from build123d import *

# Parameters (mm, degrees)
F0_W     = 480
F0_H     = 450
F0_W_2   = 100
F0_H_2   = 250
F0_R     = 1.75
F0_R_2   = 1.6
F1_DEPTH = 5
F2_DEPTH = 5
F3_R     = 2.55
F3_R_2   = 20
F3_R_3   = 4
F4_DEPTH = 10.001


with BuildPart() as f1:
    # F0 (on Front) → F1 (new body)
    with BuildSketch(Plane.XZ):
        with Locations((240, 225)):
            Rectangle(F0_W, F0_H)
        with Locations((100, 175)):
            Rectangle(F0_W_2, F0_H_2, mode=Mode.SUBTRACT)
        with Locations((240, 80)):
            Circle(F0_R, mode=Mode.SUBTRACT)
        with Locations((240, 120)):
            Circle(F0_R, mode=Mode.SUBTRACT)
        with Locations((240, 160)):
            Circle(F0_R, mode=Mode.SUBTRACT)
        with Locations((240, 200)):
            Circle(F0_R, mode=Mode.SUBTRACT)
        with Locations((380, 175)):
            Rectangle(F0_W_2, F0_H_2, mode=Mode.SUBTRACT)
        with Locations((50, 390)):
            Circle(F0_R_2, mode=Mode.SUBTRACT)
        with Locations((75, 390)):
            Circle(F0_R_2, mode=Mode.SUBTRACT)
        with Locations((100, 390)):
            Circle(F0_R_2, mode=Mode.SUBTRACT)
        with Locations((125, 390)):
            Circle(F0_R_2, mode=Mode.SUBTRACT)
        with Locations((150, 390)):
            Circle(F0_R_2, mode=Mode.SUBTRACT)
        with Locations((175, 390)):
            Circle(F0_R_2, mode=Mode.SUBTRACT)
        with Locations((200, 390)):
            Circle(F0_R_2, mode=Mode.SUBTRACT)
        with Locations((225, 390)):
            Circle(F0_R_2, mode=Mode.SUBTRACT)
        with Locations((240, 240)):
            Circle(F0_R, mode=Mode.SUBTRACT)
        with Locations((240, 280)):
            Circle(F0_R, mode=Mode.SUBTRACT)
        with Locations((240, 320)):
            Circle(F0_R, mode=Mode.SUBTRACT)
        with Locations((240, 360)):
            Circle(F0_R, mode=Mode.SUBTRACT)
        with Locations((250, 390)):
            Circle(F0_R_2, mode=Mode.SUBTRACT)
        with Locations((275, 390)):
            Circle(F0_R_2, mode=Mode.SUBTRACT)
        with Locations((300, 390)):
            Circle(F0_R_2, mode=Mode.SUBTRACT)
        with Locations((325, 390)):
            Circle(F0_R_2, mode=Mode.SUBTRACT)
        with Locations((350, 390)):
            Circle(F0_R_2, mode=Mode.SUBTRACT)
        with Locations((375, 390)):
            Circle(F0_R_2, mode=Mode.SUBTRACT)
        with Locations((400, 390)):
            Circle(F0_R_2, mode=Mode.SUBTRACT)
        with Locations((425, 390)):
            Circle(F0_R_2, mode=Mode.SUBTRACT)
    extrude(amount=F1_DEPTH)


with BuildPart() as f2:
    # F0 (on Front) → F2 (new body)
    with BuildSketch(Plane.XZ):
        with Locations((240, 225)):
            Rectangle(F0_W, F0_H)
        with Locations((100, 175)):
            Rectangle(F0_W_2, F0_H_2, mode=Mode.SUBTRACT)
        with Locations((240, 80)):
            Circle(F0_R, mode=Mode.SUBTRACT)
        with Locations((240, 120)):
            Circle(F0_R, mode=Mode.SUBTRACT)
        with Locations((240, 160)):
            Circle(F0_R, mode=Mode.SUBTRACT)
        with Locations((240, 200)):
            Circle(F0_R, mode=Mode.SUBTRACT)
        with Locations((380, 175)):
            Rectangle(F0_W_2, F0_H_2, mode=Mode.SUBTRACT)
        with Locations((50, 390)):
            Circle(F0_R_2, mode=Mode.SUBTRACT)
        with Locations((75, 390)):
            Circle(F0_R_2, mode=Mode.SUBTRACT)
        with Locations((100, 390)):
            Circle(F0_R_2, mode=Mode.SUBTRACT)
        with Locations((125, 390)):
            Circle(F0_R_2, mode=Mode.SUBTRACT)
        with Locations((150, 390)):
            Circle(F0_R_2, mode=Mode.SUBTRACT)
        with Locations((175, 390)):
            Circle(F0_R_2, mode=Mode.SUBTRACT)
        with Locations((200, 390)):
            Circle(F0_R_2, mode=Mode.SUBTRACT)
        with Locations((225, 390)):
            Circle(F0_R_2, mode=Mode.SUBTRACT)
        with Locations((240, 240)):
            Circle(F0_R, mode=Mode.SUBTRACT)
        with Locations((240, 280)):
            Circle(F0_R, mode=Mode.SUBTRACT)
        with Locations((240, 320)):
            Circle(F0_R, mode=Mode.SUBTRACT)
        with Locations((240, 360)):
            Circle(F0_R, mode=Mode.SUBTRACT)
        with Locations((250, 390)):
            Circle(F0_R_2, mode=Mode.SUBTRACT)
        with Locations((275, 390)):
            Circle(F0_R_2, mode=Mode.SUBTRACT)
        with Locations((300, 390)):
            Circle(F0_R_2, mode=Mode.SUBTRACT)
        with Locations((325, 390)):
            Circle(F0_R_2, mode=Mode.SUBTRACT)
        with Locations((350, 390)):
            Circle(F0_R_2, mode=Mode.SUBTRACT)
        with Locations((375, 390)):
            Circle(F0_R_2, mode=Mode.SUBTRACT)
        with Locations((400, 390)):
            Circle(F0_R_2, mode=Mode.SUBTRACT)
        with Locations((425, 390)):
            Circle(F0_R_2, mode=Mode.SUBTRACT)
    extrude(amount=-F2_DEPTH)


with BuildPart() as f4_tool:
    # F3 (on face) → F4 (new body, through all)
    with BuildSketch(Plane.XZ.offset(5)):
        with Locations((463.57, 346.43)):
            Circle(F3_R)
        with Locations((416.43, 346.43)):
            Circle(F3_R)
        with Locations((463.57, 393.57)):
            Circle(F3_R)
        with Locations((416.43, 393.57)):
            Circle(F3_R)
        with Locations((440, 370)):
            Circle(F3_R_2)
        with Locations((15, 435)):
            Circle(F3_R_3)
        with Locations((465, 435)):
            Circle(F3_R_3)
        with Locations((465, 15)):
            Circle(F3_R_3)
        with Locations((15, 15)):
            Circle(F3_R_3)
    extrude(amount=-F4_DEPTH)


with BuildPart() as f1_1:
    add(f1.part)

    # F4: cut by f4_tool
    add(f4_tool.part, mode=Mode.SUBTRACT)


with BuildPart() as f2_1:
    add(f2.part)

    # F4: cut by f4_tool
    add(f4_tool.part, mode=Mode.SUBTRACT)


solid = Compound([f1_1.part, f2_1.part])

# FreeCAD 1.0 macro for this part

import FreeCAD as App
import Part
import Sketcher
Q = App.Units.Quantity


def add_polygon(sketch, points):
    """Adds a closed chain of lines whose ends are joined by coincident constraints."""
    first, n = sketch.GeometryCount, len(points)
    for a, b in zip(points, points[1:] + points[:1]):
        sketch.addGeometry(Part.LineSegment(App.Vector(*a, 0), App.Vector(*b, 0)), False)
    for i in range(n):
        sketch.addConstraint(Sketcher.Constraint("Coincident", first + i, 2, first + (i + 1) % n, 1))

doc = App.newDocument("Part")
body = doc.addObject("PartDesign::Body", "Body")

# Sketch on XZ plane
sketch1 = body.newObject("Sketcher::SketchObject", "Sketch")
sketch1.AttachmentSupport = (doc.getObject("XZ_Plane"), [""])
sketch1.MapMode = "FlatFace"
add_polygon(sketch1, [(0, 450), (0, 0), (480, 0), (480, 450)])  # lines 0-3
add_polygon(sketch1, [(150, 50), (50, 50), (50, 300), (150, 300)])  # lines 4-7
sketch1.addGeometry(Part.Circle(App.Vector(240, 80, 0), App.Vector(0, 0, 1), 1.8), False)  # 8
sketch1.addGeometry(Part.Circle(App.Vector(240, 120, 0), App.Vector(0, 0, 1), 1.8), False)  # 9
sketch1.addGeometry(Part.Circle(App.Vector(240, 160, 0), App.Vector(0, 0, 1), 1.8), False)  # 10
sketch1.addGeometry(Part.Circle(App.Vector(240, 200, 0), App.Vector(0, 0, 1), 1.8), False)  # 11
add_polygon(sketch1, [(430, 50), (330, 50), (330, 300), (430, 300)])  # lines 12-15
sketch1.addGeometry(Part.Circle(App.Vector(50, 390, 0), App.Vector(0, 0, 1), 1.6), False)  # 16
sketch1.addGeometry(Part.Circle(App.Vector(75, 390, 0), App.Vector(0, 0, 1), 1.6), False)  # 17
sketch1.addGeometry(Part.Circle(App.Vector(100, 390, 0), App.Vector(0, 0, 1), 1.6), False)  # 18
sketch1.addGeometry(Part.Circle(App.Vector(125, 390, 0), App.Vector(0, 0, 1), 1.6), False)  # 19
sketch1.addGeometry(Part.Circle(App.Vector(150, 390, 0), App.Vector(0, 0, 1), 1.6), False)  # 20
sketch1.addGeometry(Part.Circle(App.Vector(175, 390, 0), App.Vector(0, 0, 1), 1.6), False)  # 21
sketch1.addGeometry(Part.Circle(App.Vector(200, 390, 0), App.Vector(0, 0, 1), 1.6), False)  # 22
sketch1.addGeometry(Part.Circle(App.Vector(225, 390, 0), App.Vector(0, 0, 1), 1.6), False)  # 23
sketch1.addGeometry(Part.Circle(App.Vector(240, 240, 0), App.Vector(0, 0, 1), 1.8), False)  # 24
sketch1.addGeometry(Part.Circle(App.Vector(240, 280, 0), App.Vector(0, 0, 1), 1.8), False)  # 25
sketch1.addGeometry(Part.Circle(App.Vector(240, 320, 0), App.Vector(0, 0, 1), 1.8), False)  # 26
sketch1.addGeometry(Part.Circle(App.Vector(240, 360, 0), App.Vector(0, 0, 1), 1.8), False)  # 27
sketch1.addGeometry(Part.Circle(App.Vector(250, 390, 0), App.Vector(0, 0, 1), 1.6), False)  # 28
sketch1.addGeometry(Part.Circle(App.Vector(275, 390, 0), App.Vector(0, 0, 1), 1.6), False)  # 29
sketch1.addGeometry(Part.Circle(App.Vector(300, 390, 0), App.Vector(0, 0, 1), 1.6), False)  # 30
sketch1.addGeometry(Part.Circle(App.Vector(325, 390, 0), App.Vector(0, 0, 1), 1.6), False)  # 31
sketch1.addGeometry(Part.Circle(App.Vector(350, 390, 0), App.Vector(0, 0, 1), 1.6), False)  # 32
sketch1.addGeometry(Part.Circle(App.Vector(375, 390, 0), App.Vector(0, 0, 1), 1.6), False)  # 33
sketch1.addGeometry(Part.Circle(App.Vector(400, 390, 0), App.Vector(0, 0, 1), 1.6), False)  # 34
sketch1.addGeometry(Part.Circle(App.Vector(425, 390, 0), App.Vector(0, 0, 1), 1.6), False)  # 35
sketch1.addConstraint(Sketcher.Constraint("Vertical", 0))
sketch1.addConstraint(Sketcher.Constraint("Horizontal", 1))
sketch1.addConstraint(Sketcher.Constraint("Vertical", 2))
sketch1.addConstraint(Sketcher.Constraint("Horizontal", 3))
sketch1.addConstraint(Sketcher.Constraint("Horizontal", 4))
sketch1.addConstraint(Sketcher.Constraint("Vertical", 5))
sketch1.addConstraint(Sketcher.Constraint("Horizontal", 6))
sketch1.addConstraint(Sketcher.Constraint("Vertical", 7))
sketch1.addConstraint(Sketcher.Constraint("Horizontal", 12))
sketch1.addConstraint(Sketcher.Constraint("Vertical", 13))
sketch1.addConstraint(Sketcher.Constraint("Horizontal", 14))
sketch1.addConstraint(Sketcher.Constraint("Vertical", 15))
sketch1.addConstraint(Sketcher.Constraint("Coincident", 0, 2, -1, 1))
sketch1.addConstraint(Sketcher.Constraint("Equal", 8, 9))
sketch1.addConstraint(Sketcher.Constraint("Equal", 9, 10))
sketch1.addConstraint(Sketcher.Constraint("Equal", 10, 11))
sketch1.addConstraint(Sketcher.Constraint("Equal", 16, 17))
sketch1.addConstraint(Sketcher.Constraint("Equal", 17, 18))
sketch1.addConstraint(Sketcher.Constraint("Equal", 18, 19))
sketch1.addConstraint(Sketcher.Constraint("Equal", 19, 20))
sketch1.addConstraint(Sketcher.Constraint("Equal", 20, 21))
sketch1.addConstraint(Sketcher.Constraint("Equal", 21, 22))
sketch1.addConstraint(Sketcher.Constraint("Equal", 22, 23))
sketch1.addConstraint(Sketcher.Constraint("Equal", 11, 24))
sketch1.addConstraint(Sketcher.Constraint("Equal", 24, 25))
sketch1.addConstraint(Sketcher.Constraint("Equal", 25, 26))
sketch1.addConstraint(Sketcher.Constraint("Equal", 26, 27))
sketch1.addConstraint(Sketcher.Constraint("Equal", 23, 28))
sketch1.addConstraint(Sketcher.Constraint("Equal", 28, 29))
sketch1.addConstraint(Sketcher.Constraint("Equal", 29, 30))
sketch1.addConstraint(Sketcher.Constraint("Equal", 30, 31))
sketch1.addConstraint(Sketcher.Constraint("Equal", 31, 32))
sketch1.addConstraint(Sketcher.Constraint("Equal", 32, 33))
sketch1.addConstraint(Sketcher.Constraint("Equal", 33, 34))
sketch1.addConstraint(Sketcher.Constraint("Equal", 34, 35))
sketch1.addConstraint(Sketcher.Constraint("Horizontal", 16, 3, 17, 3))
sketch1.addConstraint(Sketcher.Constraint("Horizontal", 17, 3, 18, 3))
sketch1.addConstraint(Sketcher.Constraint("Horizontal", 18, 3, 19, 3))
sketch1.addConstraint(Sketcher.Constraint("Horizontal", 19, 3, 20, 3))
sketch1.addConstraint(Sketcher.Constraint("Horizontal", 20, 3, 21, 3))
sketch1.addConstraint(Sketcher.Constraint("Horizontal", 21, 3, 22, 3))
sketch1.addConstraint(Sketcher.Constraint("Horizontal", 22, 3, 23, 3))
sketch1.addConstraint(Sketcher.Constraint("Horizontal", 23, 3, 28, 3))
sketch1.addConstraint(Sketcher.Constraint("Horizontal", 28, 3, 29, 3))
sketch1.addConstraint(Sketcher.Constraint("Horizontal", 29, 3, 30, 3))
sketch1.addConstraint(Sketcher.Constraint("Horizontal", 30, 3, 31, 3))
sketch1.addConstraint(Sketcher.Constraint("Horizontal", 31, 3, 32, 3))
sketch1.addConstraint(Sketcher.Constraint("Horizontal", 32, 3, 33, 3))
sketch1.addConstraint(Sketcher.Constraint("Horizontal", 33, 3, 34, 3))
sketch1.addConstraint(Sketcher.Constraint("Horizontal", 34, 3, 35, 3))
sketch1.addConstraint(Sketcher.Constraint("Horizontal", 7, 2, 12, 2))
sketch1.addConstraint(Sketcher.Constraint("Horizontal", 6, 2, 13, 2))
sketch1.addConstraint(Sketcher.Constraint("Vertical", 8, 3, 9, 3))
sketch1.addConstraint(Sketcher.Constraint("Vertical", 9, 3, 10, 3))
sketch1.addConstraint(Sketcher.Constraint("Vertical", 10, 3, 11, 3))
sketch1.addConstraint(Sketcher.Constraint("Vertical", 11, 3, 24, 3))
sketch1.addConstraint(Sketcher.Constraint("Vertical", 24, 3, 25, 3))
sketch1.addConstraint(Sketcher.Constraint("Vertical", 25, 3, 26, 3))
sketch1.addConstraint(Sketcher.Constraint("Vertical", 26, 3, 27, 3))
sketch1.addConstraint(Sketcher.Constraint("Vertical", 16, 3, 4, 2))
sketch1.addConstraint(Sketcher.Constraint("Vertical", 20, 3, 6, 2))
sketch1.addConstraint(Sketcher.Constraint("Equal", 6, 12))
sketch1.addConstraint(Sketcher.Constraint("Diameter", 8, Q("3.5 mm")))
sketch1.addConstraint(Sketcher.Constraint("Diameter", 16, Q("3.2 mm")))
sketch1.addConstraint(Sketcher.Constraint("DistanceX", 1, 1, 1, 2, Q("480 mm")))
sketch1.addConstraint(Sketcher.Constraint("DistanceX", 4, 2, 4, 1, Q("100 mm")))
sketch1.addConstraint(Sketcher.Constraint("DistanceY", 0, 2, 0, 1, Q("450 mm")))
sketch1.addConstraint(Sketcher.Constraint("DistanceY", 5, 1, 5, 2, Q("250 mm")))
sketch1.addConstraint(Sketcher.Constraint("DistanceX", -1, 1, 8, 3, Q("240 mm")))
sketch1.addConstraint(Sketcher.Constraint("DistanceY", -1, 1, 8, 3, Q("80 mm")))
sketch1.addConstraint(Sketcher.Constraint("DistanceY", -1, 1, 9, 3, Q("120 mm")))
sketch1.addConstraint(Sketcher.Constraint("DistanceY", -1, 1, 10, 3, Q("160 mm")))
sketch1.addConstraint(Sketcher.Constraint("DistanceY", -1, 1, 11, 3, Q("200 mm")))
sketch1.addConstraint(Sketcher.Constraint("DistanceX", -1, 1, 16, 3, Q("50 mm")))
sketch1.addConstraint(Sketcher.Constraint("DistanceY", -1, 1, 16, 3, Q("390 mm")))
sketch1.addConstraint(Sketcher.Constraint("DistanceX", -1, 1, 17, 3, Q("75 mm")))
sketch1.addConstraint(Sketcher.Constraint("DistanceX", -1, 1, 18, 3, Q("100 mm")))
sketch1.addConstraint(Sketcher.Constraint("DistanceX", -1, 1, 19, 3, Q("125 mm")))
sketch1.addConstraint(Sketcher.Constraint("DistanceX", -1, 1, 21, 3, Q("175 mm")))
sketch1.addConstraint(Sketcher.Constraint("DistanceX", -1, 1, 22, 3, Q("200 mm")))
sketch1.addConstraint(Sketcher.Constraint("DistanceX", -1, 1, 23, 3, Q("225 mm")))
sketch1.addConstraint(Sketcher.Constraint("DistanceY", -1, 1, 24, 3, Q("240 mm")))
sketch1.addConstraint(Sketcher.Constraint("DistanceY", -1, 1, 25, 3, Q("280 mm")))
sketch1.addConstraint(Sketcher.Constraint("DistanceY", -1, 1, 26, 3, Q("320 mm")))
sketch1.addConstraint(Sketcher.Constraint("DistanceY", -1, 1, 27, 3, Q("360 mm")))
sketch1.addConstraint(Sketcher.Constraint("DistanceX", -1, 1, 28, 3, Q("250 mm")))
sketch1.addConstraint(Sketcher.Constraint("DistanceX", -1, 1, 29, 3, Q("275 mm")))
sketch1.addConstraint(Sketcher.Constraint("DistanceX", -1, 1, 30, 3, Q("300 mm")))
sketch1.addConstraint(Sketcher.Constraint("DistanceX", -1, 1, 31, 3, Q("325 mm")))
sketch1.addConstraint(Sketcher.Constraint("DistanceX", -1, 1, 32, 3, Q("350 mm")))
sketch1.addConstraint(Sketcher.Constraint("DistanceX", -1, 1, 33, 3, Q("375 mm")))
sketch1.addConstraint(Sketcher.Constraint("DistanceX", -1, 1, 34, 3, Q("400 mm")))
sketch1.addConstraint(Sketcher.Constraint("DistanceX", -1, 1, 35, 3, Q("425 mm")))
sketch1.addConstraint(Sketcher.Constraint("DistanceY", -1, 1, 4, 2, Q("50 mm")))
sketch1.addConstraint(Sketcher.Constraint("DistanceX", -1, 1, 12, 2, Q("330 mm")))
pad1 = body.newObject("PartDesign::Pad", "Pad")
pad1.Profile = sketch1
pad1.Length = 5
body2 = doc.addObject("PartDesign::Body", "Body001")

# Sketch on XZ plane
sketch2 = body2.newObject("Sketcher::SketchObject", "Sketch001")
sketch2.AttachmentSupport = (doc.getObject("XZ_Plane001"), [""])
sketch2.MapMode = "FlatFace"
add_polygon(sketch2, [(0, 450), (0, 0), (480, 0), (480, 450)])  # lines 0-3
add_polygon(sketch2, [(150, 50), (50, 50), (50, 300), (150, 300)])  # lines 4-7
sketch2.addGeometry(Part.Circle(App.Vector(240, 80, 0), App.Vector(0, 0, 1), 1.8), False)  # 8
sketch2.addGeometry(Part.Circle(App.Vector(240, 120, 0), App.Vector(0, 0, 1), 1.8), False)  # 9
sketch2.addGeometry(Part.Circle(App.Vector(240, 160, 0), App.Vector(0, 0, 1), 1.8), False)  # 10
sketch2.addGeometry(Part.Circle(App.Vector(240, 200, 0), App.Vector(0, 0, 1), 1.8), False)  # 11
add_polygon(sketch2, [(430, 50), (330, 50), (330, 300), (430, 300)])  # lines 12-15
sketch2.addGeometry(Part.Circle(App.Vector(50, 390, 0), App.Vector(0, 0, 1), 1.6), False)  # 16
sketch2.addGeometry(Part.Circle(App.Vector(75, 390, 0), App.Vector(0, 0, 1), 1.6), False)  # 17
sketch2.addGeometry(Part.Circle(App.Vector(100, 390, 0), App.Vector(0, 0, 1), 1.6), False)  # 18
sketch2.addGeometry(Part.Circle(App.Vector(125, 390, 0), App.Vector(0, 0, 1), 1.6), False)  # 19
sketch2.addGeometry(Part.Circle(App.Vector(150, 390, 0), App.Vector(0, 0, 1), 1.6), False)  # 20
sketch2.addGeometry(Part.Circle(App.Vector(175, 390, 0), App.Vector(0, 0, 1), 1.6), False)  # 21
sketch2.addGeometry(Part.Circle(App.Vector(200, 390, 0), App.Vector(0, 0, 1), 1.6), False)  # 22
sketch2.addGeometry(Part.Circle(App.Vector(225, 390, 0), App.Vector(0, 0, 1), 1.6), False)  # 23
sketch2.addGeometry(Part.Circle(App.Vector(240, 240, 0), App.Vector(0, 0, 1), 1.8), False)  # 24
sketch2.addGeometry(Part.Circle(App.Vector(240, 280, 0), App.Vector(0, 0, 1), 1.8), False)  # 25
sketch2.addGeometry(Part.Circle(App.Vector(240, 320, 0), App.Vector(0, 0, 1), 1.8), False)  # 26
sketch2.addGeometry(Part.Circle(App.Vector(240, 360, 0), App.Vector(0, 0, 1), 1.8), False)  # 27
sketch2.addGeometry(Part.Circle(App.Vector(250, 390, 0), App.Vector(0, 0, 1), 1.6), False)  # 28
sketch2.addGeometry(Part.Circle(App.Vector(275, 390, 0), App.Vector(0, 0, 1), 1.6), False)  # 29
sketch2.addGeometry(Part.Circle(App.Vector(300, 390, 0), App.Vector(0, 0, 1), 1.6), False)  # 30
sketch2.addGeometry(Part.Circle(App.Vector(325, 390, 0), App.Vector(0, 0, 1), 1.6), False)  # 31
sketch2.addGeometry(Part.Circle(App.Vector(350, 390, 0), App.Vector(0, 0, 1), 1.6), False)  # 32
sketch2.addGeometry(Part.Circle(App.Vector(375, 390, 0), App.Vector(0, 0, 1), 1.6), False)  # 33
sketch2.addGeometry(Part.Circle(App.Vector(400, 390, 0), App.Vector(0, 0, 1), 1.6), False)  # 34
sketch2.addGeometry(Part.Circle(App.Vector(425, 390, 0), App.Vector(0, 0, 1), 1.6), False)  # 35
sketch2.addConstraint(Sketcher.Constraint("Vertical", 0))
sketch2.addConstraint(Sketcher.Constraint("Horizontal", 1))
sketch2.addConstraint(Sketcher.Constraint("Vertical", 2))
sketch2.addConstraint(Sketcher.Constraint("Horizontal", 3))
sketch2.addConstraint(Sketcher.Constraint("Horizontal", 4))
sketch2.addConstraint(Sketcher.Constraint("Vertical", 5))
sketch2.addConstraint(Sketcher.Constraint("Horizontal", 6))
sketch2.addConstraint(Sketcher.Constraint("Vertical", 7))
sketch2.addConstraint(Sketcher.Constraint("Horizontal", 12))
sketch2.addConstraint(Sketcher.Constraint("Vertical", 13))
sketch2.addConstraint(Sketcher.Constraint("Horizontal", 14))
sketch2.addConstraint(Sketcher.Constraint("Vertical", 15))
sketch2.addConstraint(Sketcher.Constraint("Coincident", 0, 2, -1, 1))
sketch2.addConstraint(Sketcher.Constraint("Equal", 8, 9))
sketch2.addConstraint(Sketcher.Constraint("Equal", 9, 10))
sketch2.addConstraint(Sketcher.Constraint("Equal", 10, 11))
sketch2.addConstraint(Sketcher.Constraint("Equal", 16, 17))
sketch2.addConstraint(Sketcher.Constraint("Equal", 17, 18))
sketch2.addConstraint(Sketcher.Constraint("Equal", 18, 19))
sketch2.addConstraint(Sketcher.Constraint("Equal", 19, 20))
sketch2.addConstraint(Sketcher.Constraint("Equal", 20, 21))
sketch2.addConstraint(Sketcher.Constraint("Equal", 21, 22))
sketch2.addConstraint(Sketcher.Constraint("Equal", 22, 23))
sketch2.addConstraint(Sketcher.Constraint("Equal", 11, 24))
sketch2.addConstraint(Sketcher.Constraint("Equal", 24, 25))
sketch2.addConstraint(Sketcher.Constraint("Equal", 25, 26))
sketch2.addConstraint(Sketcher.Constraint("Equal", 26, 27))
sketch2.addConstraint(Sketcher.Constraint("Equal", 23, 28))
sketch2.addConstraint(Sketcher.Constraint("Equal", 28, 29))
sketch2.addConstraint(Sketcher.Constraint("Equal", 29, 30))
sketch2.addConstraint(Sketcher.Constraint("Equal", 30, 31))
sketch2.addConstraint(Sketcher.Constraint("Equal", 31, 32))
sketch2.addConstraint(Sketcher.Constraint("Equal", 32, 33))
sketch2.addConstraint(Sketcher.Constraint("Equal", 33, 34))
sketch2.addConstraint(Sketcher.Constraint("Equal", 34, 35))
sketch2.addConstraint(Sketcher.Constraint("Horizontal", 16, 3, 17, 3))
sketch2.addConstraint(Sketcher.Constraint("Horizontal", 17, 3, 18, 3))
sketch2.addConstraint(Sketcher.Constraint("Horizontal", 18, 3, 19, 3))
sketch2.addConstraint(Sketcher.Constraint("Horizontal", 19, 3, 20, 3))
sketch2.addConstraint(Sketcher.Constraint("Horizontal", 20, 3, 21, 3))
sketch2.addConstraint(Sketcher.Constraint("Horizontal", 21, 3, 22, 3))
sketch2.addConstraint(Sketcher.Constraint("Horizontal", 22, 3, 23, 3))
sketch2.addConstraint(Sketcher.Constraint("Horizontal", 23, 3, 28, 3))
sketch2.addConstraint(Sketcher.Constraint("Horizontal", 28, 3, 29, 3))
sketch2.addConstraint(Sketcher.Constraint("Horizontal", 29, 3, 30, 3))
sketch2.addConstraint(Sketcher.Constraint("Horizontal", 30, 3, 31, 3))
sketch2.addConstraint(Sketcher.Constraint("Horizontal", 31, 3, 32, 3))
sketch2.addConstraint(Sketcher.Constraint("Horizontal", 32, 3, 33, 3))
sketch2.addConstraint(Sketcher.Constraint("Horizontal", 33, 3, 34, 3))
sketch2.addConstraint(Sketcher.Constraint("Horizontal", 34, 3, 35, 3))
sketch2.addConstraint(Sketcher.Constraint("Horizontal", 7, 2, 12, 2))
sketch2.addConstraint(Sketcher.Constraint("Horizontal", 6, 2, 13, 2))
sketch2.addConstraint(Sketcher.Constraint("Vertical", 8, 3, 9, 3))
sketch2.addConstraint(Sketcher.Constraint("Vertical", 9, 3, 10, 3))
sketch2.addConstraint(Sketcher.Constraint("Vertical", 10, 3, 11, 3))
sketch2.addConstraint(Sketcher.Constraint("Vertical", 11, 3, 24, 3))
sketch2.addConstraint(Sketcher.Constraint("Vertical", 24, 3, 25, 3))
sketch2.addConstraint(Sketcher.Constraint("Vertical", 25, 3, 26, 3))
sketch2.addConstraint(Sketcher.Constraint("Vertical", 26, 3, 27, 3))
sketch2.addConstraint(Sketcher.Constraint("Vertical", 16, 3, 4, 2))
sketch2.addConstraint(Sketcher.Constraint("Vertical", 20, 3, 6, 2))
sketch2.addConstraint(Sketcher.Constraint("Equal", 6, 12))
sketch2.addConstraint(Sketcher.Constraint("Diameter", 8, Q("3.5 mm")))
sketch2.addConstraint(Sketcher.Constraint("Diameter", 16, Q("3.2 mm")))
sketch2.addConstraint(Sketcher.Constraint("DistanceX", 1, 1, 1, 2, Q("480 mm")))
sketch2.addConstraint(Sketcher.Constraint("DistanceX", 4, 2, 4, 1, Q("100 mm")))
sketch2.addConstraint(Sketcher.Constraint("DistanceY", 0, 2, 0, 1, Q("450 mm")))
sketch2.addConstraint(Sketcher.Constraint("DistanceY", 5, 1, 5, 2, Q("250 mm")))
sketch2.addConstraint(Sketcher.Constraint("DistanceX", -1, 1, 8, 3, Q("240 mm")))
sketch2.addConstraint(Sketcher.Constraint("DistanceY", -1, 1, 8, 3, Q("80 mm")))
sketch2.addConstraint(Sketcher.Constraint("DistanceY", -1, 1, 9, 3, Q("120 mm")))
sketch2.addConstraint(Sketcher.Constraint("DistanceY", -1, 1, 10, 3, Q("160 mm")))
sketch2.addConstraint(Sketcher.Constraint("DistanceY", -1, 1, 11, 3, Q("200 mm")))
sketch2.addConstraint(Sketcher.Constraint("DistanceX", -1, 1, 16, 3, Q("50 mm")))
sketch2.addConstraint(Sketcher.Constraint("DistanceY", -1, 1, 16, 3, Q("390 mm")))
sketch2.addConstraint(Sketcher.Constraint("DistanceX", -1, 1, 17, 3, Q("75 mm")))
sketch2.addConstraint(Sketcher.Constraint("DistanceX", -1, 1, 18, 3, Q("100 mm")))
sketch2.addConstraint(Sketcher.Constraint("DistanceX", -1, 1, 19, 3, Q("125 mm")))
sketch2.addConstraint(Sketcher.Constraint("DistanceX", -1, 1, 21, 3, Q("175 mm")))
sketch2.addConstraint(Sketcher.Constraint("DistanceX", -1, 1, 22, 3, Q("200 mm")))
sketch2.addConstraint(Sketcher.Constraint("DistanceX", -1, 1, 23, 3, Q("225 mm")))
sketch2.addConstraint(Sketcher.Constraint("DistanceY", -1, 1, 24, 3, Q("240 mm")))
sketch2.addConstraint(Sketcher.Constraint("DistanceY", -1, 1, 25, 3, Q("280 mm")))
sketch2.addConstraint(Sketcher.Constraint("DistanceY", -1, 1, 26, 3, Q("320 mm")))
sketch2.addConstraint(Sketcher.Constraint("DistanceY", -1, 1, 27, 3, Q("360 mm")))
sketch2.addConstraint(Sketcher.Constraint("DistanceX", -1, 1, 28, 3, Q("250 mm")))
sketch2.addConstraint(Sketcher.Constraint("DistanceX", -1, 1, 29, 3, Q("275 mm")))
sketch2.addConstraint(Sketcher.Constraint("DistanceX", -1, 1, 30, 3, Q("300 mm")))
sketch2.addConstraint(Sketcher.Constraint("DistanceX", -1, 1, 31, 3, Q("325 mm")))
sketch2.addConstraint(Sketcher.Constraint("DistanceX", -1, 1, 32, 3, Q("350 mm")))
sketch2.addConstraint(Sketcher.Constraint("DistanceX", -1, 1, 33, 3, Q("375 mm")))
sketch2.addConstraint(Sketcher.Constraint("DistanceX", -1, 1, 34, 3, Q("400 mm")))
sketch2.addConstraint(Sketcher.Constraint("DistanceX", -1, 1, 35, 3, Q("425 mm")))
sketch2.addConstraint(Sketcher.Constraint("DistanceY", -1, 1, 4, 2, Q("50 mm")))
sketch2.addConstraint(Sketcher.Constraint("DistanceX", -1, 1, 12, 2, Q("330 mm")))
pad2 = body2.newObject("PartDesign::Pad", "Pad001")
pad2.Profile = sketch2
pad2.Length = 5
pad2.Reversed = True
body3 = doc.addObject("PartDesign::Body", "Body002")
body3.AllowCompound = True

# Sketch on XZ plane
sketch3 = body3.newObject("Sketcher::SketchObject", "Sketch002")
sketch3.AttachmentSupport = (doc.getObject("XZ_Plane002"), [""])
sketch3.MapMode = "FlatFace"
sketch3.AttachmentOffset = App.Placement(App.Vector(0, 0, 5), App.Rotation())
sketch3.addGeometry(Part.Circle(App.Vector(463.6, 346.4, 0), App.Vector(0, 0, 1), 2.5), False)
sketch3.addGeometry(Part.Circle(App.Vector(416.4, 346.4, 0), App.Vector(0, 0, 1), 2.5), False)
sketch3.addGeometry(Part.Circle(App.Vector(463.6, 393.6, 0), App.Vector(0, 0, 1), 2.5), False)
sketch3.addGeometry(Part.Circle(App.Vector(416.4, 393.6, 0), App.Vector(0, 0, 1), 2.5), False)
sketch3.addGeometry(Part.Circle(App.Vector(440, 370, 0), App.Vector(0, 0, 1), 20), False)
sketch3.addGeometry(Part.Circle(App.Vector(15, 435, 0), App.Vector(0, 0, 1), 4), False)
sketch3.addGeometry(Part.Circle(App.Vector(465, 435, 0), App.Vector(0, 0, 1), 4), False)
sketch3.addGeometry(Part.Circle(App.Vector(465, 15, 0), App.Vector(0, 0, 1), 4), False)
sketch3.addGeometry(Part.Circle(App.Vector(15, 15, 0), App.Vector(0, 0, 1), 4), False)
sketch3.addConstraint(Sketcher.Constraint("Equal", 0, 1))
sketch3.addConstraint(Sketcher.Constraint("Equal", 1, 2))
sketch3.addConstraint(Sketcher.Constraint("Equal", 2, 3))
sketch3.addConstraint(Sketcher.Constraint("Equal", 5, 6))
sketch3.addConstraint(Sketcher.Constraint("Equal", 6, 7))
sketch3.addConstraint(Sketcher.Constraint("Equal", 7, 8))
sketch3.addConstraint(Sketcher.Constraint("Horizontal", 0, 3, 1, 3))
sketch3.addConstraint(Sketcher.Constraint("Horizontal", 2, 3, 3, 3))
sketch3.addConstraint(Sketcher.Constraint("Horizontal", 5, 3, 6, 3))
sketch3.addConstraint(Sketcher.Constraint("Horizontal", 7, 3, 8, 3))
sketch3.addConstraint(Sketcher.Constraint("Vertical", 0, 3, 2, 3))
sketch3.addConstraint(Sketcher.Constraint("Vertical", 1, 3, 3, 3))
sketch3.addConstraint(Sketcher.Constraint("Vertical", 6, 3, 7, 3))
sketch3.addConstraint(Sketcher.Constraint("Vertical", 5, 3, 8, 3))
sketch3.addConstraint(Sketcher.Constraint("Diameter", 4, Q("40 mm")))
sketch3.addConstraint(Sketcher.Constraint("Diameter", 5, Q("8 mm")))
sketch3.addConstraint(Sketcher.Constraint("Diameter", 0, Q("5.1 mm")))
sketch3.addConstraint(Sketcher.Constraint("DistanceX", -1, 1, 4, 3, Q("440 mm")))
sketch3.addConstraint(Sketcher.Constraint("DistanceY", -1, 1, 4, 3, Q("370 mm")))
sketch3.addConstraint(Sketcher.Constraint("DistanceX", -1, 1, 5, 3, Q("15 mm")))
sketch3.addConstraint(Sketcher.Constraint("DistanceY", -1, 1, 5, 3, Q("435 mm")))
sketch3.addConstraint(Sketcher.Constraint("DistanceX", -1, 1, 6, 3, Q("465 mm")))
sketch3.addConstraint(Sketcher.Constraint("DistanceY", -1, 1, 7, 3, Q("15 mm")))
sketch3.addConstraint(Sketcher.Constraint("DistanceX", -1, 1, 0, 3, Q("463.57 mm")))
sketch3.addConstraint(Sketcher.Constraint("DistanceY", -1, 1, 0, 3, Q("346.43 mm")))
sketch3.addConstraint(Sketcher.Constraint("DistanceX", -1, 1, 1, 3, Q("416.43 mm")))
sketch3.addConstraint(Sketcher.Constraint("DistanceY", -1, 1, 2, 3, Q("393.57 mm")))
pad3 = body3.newObject("PartDesign::Pad", "Pad002")
pad3.Profile = sketch3
pad3.Length = 10.001
pad3.Reversed = True
doc.recompute()

body4 = doc.addObject("PartDesign::Body", "Body003")
body4.BaseFeature = body3
boolean = body.newObject("PartDesign::Boolean", "Boolean")
boolean.Type = "Cut"
boolean.addObjects([body4])
doc.recompute()

boolean2 = body2.newObject("PartDesign::Boolean", "Boolean001")
boolean2.Type = "Cut"
boolean2.addObjects([body3])

doc.recompute()
